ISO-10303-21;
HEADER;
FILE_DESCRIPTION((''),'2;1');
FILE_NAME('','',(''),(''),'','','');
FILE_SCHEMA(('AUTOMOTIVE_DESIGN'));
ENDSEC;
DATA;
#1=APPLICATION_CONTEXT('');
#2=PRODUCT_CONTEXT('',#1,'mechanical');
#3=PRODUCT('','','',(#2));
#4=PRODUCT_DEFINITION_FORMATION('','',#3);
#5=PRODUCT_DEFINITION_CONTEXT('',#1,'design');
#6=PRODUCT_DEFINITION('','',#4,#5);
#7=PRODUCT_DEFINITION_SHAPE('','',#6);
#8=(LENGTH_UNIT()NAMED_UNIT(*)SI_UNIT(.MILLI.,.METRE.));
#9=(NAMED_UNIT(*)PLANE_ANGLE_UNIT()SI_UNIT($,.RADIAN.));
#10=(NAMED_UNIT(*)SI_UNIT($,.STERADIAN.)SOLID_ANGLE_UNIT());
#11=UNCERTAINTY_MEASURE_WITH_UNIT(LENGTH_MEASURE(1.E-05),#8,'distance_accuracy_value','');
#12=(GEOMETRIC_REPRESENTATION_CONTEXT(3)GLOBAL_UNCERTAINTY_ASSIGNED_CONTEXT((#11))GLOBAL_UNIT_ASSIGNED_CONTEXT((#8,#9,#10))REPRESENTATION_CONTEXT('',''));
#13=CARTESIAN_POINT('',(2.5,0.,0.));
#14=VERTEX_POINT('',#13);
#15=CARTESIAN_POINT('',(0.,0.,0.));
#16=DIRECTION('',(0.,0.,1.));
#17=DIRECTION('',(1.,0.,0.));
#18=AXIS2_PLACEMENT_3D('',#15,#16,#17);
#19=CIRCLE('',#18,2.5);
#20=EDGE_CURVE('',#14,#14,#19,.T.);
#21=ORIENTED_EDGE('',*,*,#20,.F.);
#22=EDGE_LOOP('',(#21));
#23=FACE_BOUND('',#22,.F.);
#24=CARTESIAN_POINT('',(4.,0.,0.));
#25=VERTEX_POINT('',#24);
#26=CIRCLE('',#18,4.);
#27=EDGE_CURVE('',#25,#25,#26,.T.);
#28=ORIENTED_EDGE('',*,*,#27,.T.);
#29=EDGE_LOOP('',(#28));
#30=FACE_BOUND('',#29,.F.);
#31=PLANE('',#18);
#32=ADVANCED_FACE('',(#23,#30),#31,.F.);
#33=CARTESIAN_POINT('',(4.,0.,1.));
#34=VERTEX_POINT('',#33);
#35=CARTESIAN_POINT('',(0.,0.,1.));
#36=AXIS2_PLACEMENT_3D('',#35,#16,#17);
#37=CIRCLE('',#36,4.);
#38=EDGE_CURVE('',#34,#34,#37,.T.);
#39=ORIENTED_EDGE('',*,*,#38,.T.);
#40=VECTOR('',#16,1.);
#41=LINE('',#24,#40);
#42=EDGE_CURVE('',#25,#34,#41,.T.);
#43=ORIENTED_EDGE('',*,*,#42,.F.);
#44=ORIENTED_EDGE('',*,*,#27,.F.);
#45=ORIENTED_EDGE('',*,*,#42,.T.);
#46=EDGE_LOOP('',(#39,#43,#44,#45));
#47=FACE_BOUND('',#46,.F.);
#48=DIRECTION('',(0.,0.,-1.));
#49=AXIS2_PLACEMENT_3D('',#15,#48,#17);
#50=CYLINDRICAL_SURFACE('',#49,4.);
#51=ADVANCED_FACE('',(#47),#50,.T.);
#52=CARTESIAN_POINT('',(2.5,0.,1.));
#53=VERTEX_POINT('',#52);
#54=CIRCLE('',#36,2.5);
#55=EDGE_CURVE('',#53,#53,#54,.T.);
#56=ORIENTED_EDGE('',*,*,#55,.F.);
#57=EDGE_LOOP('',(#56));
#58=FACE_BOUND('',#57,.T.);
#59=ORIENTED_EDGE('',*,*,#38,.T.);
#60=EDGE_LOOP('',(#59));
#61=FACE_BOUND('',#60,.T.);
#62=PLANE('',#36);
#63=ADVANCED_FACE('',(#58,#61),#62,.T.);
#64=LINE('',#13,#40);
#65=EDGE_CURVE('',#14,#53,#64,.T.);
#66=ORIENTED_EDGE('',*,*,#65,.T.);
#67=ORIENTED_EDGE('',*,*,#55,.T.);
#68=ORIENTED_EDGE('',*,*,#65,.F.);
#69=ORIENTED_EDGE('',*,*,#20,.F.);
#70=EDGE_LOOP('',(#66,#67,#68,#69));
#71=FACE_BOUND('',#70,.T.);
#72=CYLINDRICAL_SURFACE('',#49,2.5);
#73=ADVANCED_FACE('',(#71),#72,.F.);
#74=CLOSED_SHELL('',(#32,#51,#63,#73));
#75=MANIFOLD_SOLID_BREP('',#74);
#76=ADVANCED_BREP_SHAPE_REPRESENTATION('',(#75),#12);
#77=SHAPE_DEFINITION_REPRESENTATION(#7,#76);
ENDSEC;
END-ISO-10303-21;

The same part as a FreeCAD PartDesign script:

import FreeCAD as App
import Part
import Sketcher
Q = App.Units.Quantity

doc = App.newDocument("Part")
body = doc.addObject("PartDesign::Body", "Body")

sketch1 = body.newObject("Sketcher::SketchObject", "Sketch")
sketch1.AttachmentSupport = (doc.getObject("XY_Plane"), [""])
sketch1.MapMode = "FlatFace"
sketch1.addGeometry([
    Part.Circle(App.Vector(0, 0, 0), App.Vector(0, 0, 1), 4),
    Part.Circle(App.Vector(0, 0, 0), App.Vector(0, 0, 1), 2.5),
], False)
sketch1.addConstraint([
    Sketcher.Constraint("Coincident", 0, 3, -1, 1),
    Sketcher.Constraint("Coincident", 1, 3, -1, 1),
    Sketcher.Constraint("Diameter", 0, Q("8 mm")),
    Sketcher.Constraint("Diameter", 1, Q("5 mm")),
])
pad1 = body.newObject("PartDesign::Pad", "Pad")
pad1.Profile = sketch1
pad1.Length = 1

doc.recompute()
